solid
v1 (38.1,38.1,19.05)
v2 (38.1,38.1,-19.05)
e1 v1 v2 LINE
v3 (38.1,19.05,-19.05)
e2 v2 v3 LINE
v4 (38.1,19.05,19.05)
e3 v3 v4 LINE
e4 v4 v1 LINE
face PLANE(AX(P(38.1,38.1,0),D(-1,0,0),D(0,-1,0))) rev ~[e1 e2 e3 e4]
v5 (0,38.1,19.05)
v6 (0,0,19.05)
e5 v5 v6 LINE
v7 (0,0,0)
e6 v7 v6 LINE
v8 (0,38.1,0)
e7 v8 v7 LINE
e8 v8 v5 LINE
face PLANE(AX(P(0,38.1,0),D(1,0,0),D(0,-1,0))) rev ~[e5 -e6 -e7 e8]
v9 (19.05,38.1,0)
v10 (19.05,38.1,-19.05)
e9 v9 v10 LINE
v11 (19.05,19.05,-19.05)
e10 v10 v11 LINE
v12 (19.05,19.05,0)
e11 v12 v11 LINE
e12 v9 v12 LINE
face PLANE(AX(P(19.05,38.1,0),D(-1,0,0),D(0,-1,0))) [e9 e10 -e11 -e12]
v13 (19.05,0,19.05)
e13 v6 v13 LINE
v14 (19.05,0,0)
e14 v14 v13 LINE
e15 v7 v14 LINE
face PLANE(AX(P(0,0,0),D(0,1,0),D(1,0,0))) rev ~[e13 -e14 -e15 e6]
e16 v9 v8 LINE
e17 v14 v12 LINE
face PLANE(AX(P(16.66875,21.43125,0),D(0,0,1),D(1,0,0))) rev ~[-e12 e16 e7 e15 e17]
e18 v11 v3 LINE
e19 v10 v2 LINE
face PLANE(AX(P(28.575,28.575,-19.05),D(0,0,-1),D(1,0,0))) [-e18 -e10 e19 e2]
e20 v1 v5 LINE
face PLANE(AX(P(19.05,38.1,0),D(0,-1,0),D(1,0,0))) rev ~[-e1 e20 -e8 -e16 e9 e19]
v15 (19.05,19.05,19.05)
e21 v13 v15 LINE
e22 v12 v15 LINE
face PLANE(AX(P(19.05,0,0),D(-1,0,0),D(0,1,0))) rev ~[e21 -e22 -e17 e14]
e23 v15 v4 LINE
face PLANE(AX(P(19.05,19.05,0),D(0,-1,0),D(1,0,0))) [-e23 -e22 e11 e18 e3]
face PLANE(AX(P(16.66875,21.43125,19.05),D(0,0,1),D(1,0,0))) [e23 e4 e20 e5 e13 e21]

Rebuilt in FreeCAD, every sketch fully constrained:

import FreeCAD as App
import Part
import Sketcher
from FreeCAD import Vector
Q = App.Units.Quantity


def add_polygon(sketch, points):
    """Adds a closed chain of lines whose ends are joined by coincident constraints."""
    first, n = sketch.GeometryCount, len(points)
    for a, b in zip(points, points[1:] + points[:1]):
        sketch.addGeometry(Part.LineSegment(App.Vector(*a, 0), App.Vector(*b, 0)), False)
    for i in range(n):
        sketch.addConstraint(Sketcher.Constraint("Coincident", first + i, 2, first + (i + 1) % n, 1))

doc = App.newDocument("Part")
body = doc.addObject("PartDesign::Body", "Body")

sketch1 = body.newObject("Sketcher::SketchObject", "Sketch")
sketch1.AttachmentSupport = (doc.getObject("XY_Plane"), [""])
sketch1.MapMode = "FlatFace"
add_polygon(sketch1, [(0, 38.1), (0, 0), (19.05, 0), (19.05, 19.05), (38.1, 19.05), (38.1, 38.1)])
sketch1.addConstraint([
    Sketcher.Constraint("Vertical", 0),
    Sketcher.Constraint("Horizontal", 1),
    Sketcher.Constraint("Vertical", 2),
    Sketcher.Constraint("Horizontal", 3),
    Sketcher.Constraint("Vertical", 4),
    Sketcher.Constraint("Horizontal", 5),
    Sketcher.Constraint("Coincident", 0, 2, -1, 1),
    Sketcher.Constraint("Equal", 1, 3),
    Sketcher.Constraint("Equal", 5, 0),
    Sketcher.Constraint("Equal", 3, 2),
    Sketcher.Constraint("DistanceX", 5, 2, 5, 1, Q("1.5 in")),
])
pad1 = body.newObject("PartDesign::Pad", "Pad")
pad1.Profile = sketch1
pad1.Length = Q("0.75 in")

sketch2 = body.newObject("Sketcher::SketchObject", "Sketch001")
sketch2.AttachmentSupport = (doc.getObject("XY_Plane"), [""])
sketch2.MapMode = "FlatFace"
add_polygon(sketch2, [(19.05, 19.05), (19.05, 38.1), (38.1, 38.1), (38.1, 19.05)])
sketch2.addConstraint([
    Sketcher.Constraint("Vertical", 0),
    Sketcher.Constraint("Horizontal", 1),
    Sketcher.Constraint("Vertical", 2),
    Sketcher.Constraint("Horizontal", 3),
    Sketcher.Constraint("Equal", 3, 0),
    Sketcher.Constraint("DistanceX", 1, 1, 1, 2, Q("0.75 in")),
    Sketcher.Constraint("DistanceY", -1, 1, 0, 2, Q("1.5 in")),
    Sketcher.Constraint("DistanceX", -1, 1, 1, 2, Q("1.5 in")),
])
pad2 = body.newObject("PartDesign::Pad", "Pad001")
pad2.Profile = sketch2
pad2.Length = Q("0.75 in")
pad2.Reversed = True

doc.recompute()
